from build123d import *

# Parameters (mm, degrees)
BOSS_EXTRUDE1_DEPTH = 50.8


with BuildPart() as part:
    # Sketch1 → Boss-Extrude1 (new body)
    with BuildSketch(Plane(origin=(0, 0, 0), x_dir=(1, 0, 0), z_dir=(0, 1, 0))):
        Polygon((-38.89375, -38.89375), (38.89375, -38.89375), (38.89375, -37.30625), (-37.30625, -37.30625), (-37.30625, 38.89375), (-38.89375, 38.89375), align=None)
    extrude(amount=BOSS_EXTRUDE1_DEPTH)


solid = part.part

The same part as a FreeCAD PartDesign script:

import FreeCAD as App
import Part
import Sketcher
Q = App.Units.Quantity

doc = App.newDocument("Part")
body = doc.addObject("PartDesign::Body", "Body")

# Sketch on XZ plane
sketch1 = body.newObject("Sketcher::SketchObject", "Sketch")
sketch1.AttachmentSupport = (doc.getObject("XZ_Plane"), [""])
sketch1.MapMode = "FlatFace"
sketch1.addGeometry(Part.LineSegment(App.Vector(-38.9, 38.9, 0), App.Vector(38.9, 38.9, 0)), False)
sketch1.addGeometry(Part.LineSegment(App.Vector(38.9, 38.9, 0), App.Vector(38.9, 37.3, 0)), False)
sketch1.addGeometry(Part.LineSegment(App.Vector(38.9, 37.3, 0), App.Vector(-37.3, 37.3, 0)), False)
sketch1.addGeometry(Part.LineSegment(App.Vector(-37.3, 37.3, 0), App.Vector(-37.3, -38.9, 0)), False)
sketch1.addGeometry(Part.LineSegment(App.Vector(-37.3, -38.9, 0), App.Vector(-38.9, -38.9, 0)), False)
sketch1.addGeometry(Part.LineSegment(App.Vector(-38.9, -38.9, 0), App.Vector(-38.9, 38.9, 0)), False)
sketch1.addConstraint(Sketcher.Constraint("Coincident", 0, 2, 1, 1))
sketch1.addConstraint(Sketcher.Constraint("Coincident", 1, 2, 2, 1))
sketch1.addConstraint(Sketcher.Constraint("Coincident", 2, 2, 3, 1))
sketch1.addConstraint(Sketcher.Constraint("Coincident", 3, 2, 4, 1))
sketch1.addConstraint(Sketcher.Constraint("Coincident", 4, 2, 5, 1))
sketch1.addConstraint(Sketcher.Constraint("Coincident", 5, 2, 0, 1))
sketch1.addConstraint(Sketcher.Constraint("Horizontal", 0))
sketch1.addConstraint(Sketcher.Constraint("Vertical", 1))
sketch1.addConstraint(Sketcher.Constraint("Horizontal", 2))
sketch1.addConstraint(Sketcher.Constraint("Vertical", 3))
sketch1.addConstraint(Sketcher.Constraint("Horizontal", 4))
sketch1.addConstraint(Sketcher.Constraint("Vertical", 5))
sketch1.addConstraint(Sketcher.Constraint("Symmetric", 0, 2, 4, 2, -1, 1))
sketch1.addConstraint(Sketcher.Constraint("Equal", 4, 1))
sketch1.addConstraint(Sketcher.Constraint("Equal", 2, 3))
sketch1.addConstraint(Sketcher.Constraint("DistanceX", 2, 2, 2, 1, Q("3 in")))
sketch1.addConstraint(Sketcher.Constraint("DistanceX", 0, 1, 0, 2, Q("3.0625 in")))
pad1 = body.newObject("PartDesign::Pad", "Pad")
pad1.Profile = sketch1
pad1.Length = Q("2 in")
pad1.Reversed = True

doc.recompute()
